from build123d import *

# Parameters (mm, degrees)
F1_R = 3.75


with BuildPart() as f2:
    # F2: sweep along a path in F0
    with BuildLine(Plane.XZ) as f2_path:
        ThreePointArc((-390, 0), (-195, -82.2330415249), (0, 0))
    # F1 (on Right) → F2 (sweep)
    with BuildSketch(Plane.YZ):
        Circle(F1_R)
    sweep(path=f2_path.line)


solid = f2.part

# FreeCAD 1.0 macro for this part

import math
import FreeCAD as App
import Part
import Sketcher

V = App.Vector
Q = App.Units.Quantity

doc = App.newDocument("Part")
body = doc.addObject("PartDesign::Body", "Body")

# Sketch on YZ plane
sketch1 = body.newObject("Sketcher::SketchObject", "Sketch")
sketch1.AttachmentSupport = (doc.getObject("YZ_Plane"), [""])
sketch1.MapMode = "FlatFace"
sketch1.addGeometry(Part.Circle(V(0, 0, 0), V(0, 0, 1), 3.8), False)
sketch1.addConstraint([
    Sketcher.Constraint("Coincident", 0, 3, -1, 1),
    Sketcher.Constraint("Diameter", 0, Q("7.5 mm")),
])

# Sketch on XZ plane
sketch2 = body.newObject("Sketcher::SketchObject", "Sketch001")
sketch2.AttachmentSupport = (doc.getObject("XZ_Plane"), [""])
sketch2.MapMode = "FlatFace"
sketch2.addGeometry(Part.ArcOfCircle(Part.Circle(V(-195, 190, 0), V(0, 0, 1), 272), math.radians(-136), math.radians(-44)), False)
sketch2.addConstraint([
    Sketcher.Constraint("Coincident", 0, 2, -1, 1),
    Sketcher.Constraint("PointOnObject", 0, 1, -1),
    Sketcher.Constraint("DistanceX", 0, 3, -1, 1, Q("195 mm")),
    Sketcher.Constraint("Radius", 0, Q("272.319206 mm")),
])
doc.recompute()

additivepipe = body.newObject("PartDesign::AdditivePipe", "AdditivePipe")
additivepipe.Profile = sketch1
additivepipe.Spine = (sketch2, ["Edge1"])

doc.recompute()
